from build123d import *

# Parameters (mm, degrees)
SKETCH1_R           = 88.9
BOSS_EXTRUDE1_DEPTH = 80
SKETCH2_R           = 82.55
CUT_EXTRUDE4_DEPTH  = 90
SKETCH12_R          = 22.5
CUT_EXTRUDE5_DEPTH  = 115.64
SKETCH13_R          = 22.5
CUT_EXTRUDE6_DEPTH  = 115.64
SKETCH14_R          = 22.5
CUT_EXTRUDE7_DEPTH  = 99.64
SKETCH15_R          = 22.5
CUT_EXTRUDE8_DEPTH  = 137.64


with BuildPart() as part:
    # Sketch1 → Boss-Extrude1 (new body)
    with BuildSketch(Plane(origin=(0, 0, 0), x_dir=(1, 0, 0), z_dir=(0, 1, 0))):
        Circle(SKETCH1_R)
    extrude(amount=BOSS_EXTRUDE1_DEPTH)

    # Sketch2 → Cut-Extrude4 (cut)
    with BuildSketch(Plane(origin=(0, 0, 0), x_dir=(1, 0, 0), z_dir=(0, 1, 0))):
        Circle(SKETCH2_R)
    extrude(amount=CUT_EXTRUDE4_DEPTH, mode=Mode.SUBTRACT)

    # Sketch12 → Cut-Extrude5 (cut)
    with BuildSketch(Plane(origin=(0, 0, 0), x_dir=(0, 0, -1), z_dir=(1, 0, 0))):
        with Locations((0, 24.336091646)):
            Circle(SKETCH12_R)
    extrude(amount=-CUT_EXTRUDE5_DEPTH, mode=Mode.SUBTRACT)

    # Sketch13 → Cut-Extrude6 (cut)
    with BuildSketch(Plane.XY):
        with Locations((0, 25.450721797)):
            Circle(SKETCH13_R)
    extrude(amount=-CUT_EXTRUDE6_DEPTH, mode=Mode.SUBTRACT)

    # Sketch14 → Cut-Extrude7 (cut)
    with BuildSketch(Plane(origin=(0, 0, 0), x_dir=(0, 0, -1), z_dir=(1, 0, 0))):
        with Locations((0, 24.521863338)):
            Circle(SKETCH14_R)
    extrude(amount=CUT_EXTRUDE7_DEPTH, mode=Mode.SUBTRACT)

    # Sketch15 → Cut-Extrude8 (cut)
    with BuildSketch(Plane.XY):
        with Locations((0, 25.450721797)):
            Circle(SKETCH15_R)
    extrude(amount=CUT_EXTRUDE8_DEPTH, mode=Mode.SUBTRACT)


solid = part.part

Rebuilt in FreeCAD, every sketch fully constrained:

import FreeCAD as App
import Part
import Sketcher
from FreeCAD import Vector

doc = App.newDocument("Part")
body = doc.addObject("PartDesign::Body", "Body")

# Sketch on XZ plane
sketch1 = doc.addObject("Sketcher::SketchObject", "Sketch")
body.addObject(sketch1)
sketch1.AttachmentSupport = (doc.XZ_Plane, [""])
sketch1.MapMode = "FlatFace"
sketch1.addGeometry(Part.Circle(Vector(0, 0, 0), Vector(0, 0, 1), 88.9), False)
sketch1.addConstraint([
    Sketcher.Constraint("Coincident", 0, 3, -1, 1),
    Sketcher.Constraint("Diameter", 0, 177.8),
])
pad1 = doc.addObject("PartDesign::Pad", "Pad")
body.addObject(pad1)
pad1.Profile = sketch1
pad1.Length = 80
pad1.Reversed = True

# Sketch on XZ plane
sketch2 = doc.addObject("Sketcher::SketchObject", "Sketch001")
body.addObject(sketch2)
sketch2.AttachmentSupport = (doc.XZ_Plane, [""])
sketch2.MapMode = "FlatFace"
sketch2.addGeometry(Part.Circle(Vector(0, 0, 0), Vector(0, 0, 1), 82.55), False)
sketch2.addConstraint([
    Sketcher.Constraint("Coincident", 0, 3, -1, 1),
    Sketcher.Constraint("Diameter", 0, 165.1),
])
pocket1 = doc.addObject("PartDesign::Pocket", "Pocket")
body.addObject(pocket1)
pocket1.Profile = sketch2
pocket1.Length = 90

# Sketch on YZ plane
sketch3 = doc.addObject("Sketcher::SketchObject", "Sketch002")
body.addObject(sketch3)
sketch3.AttachmentSupport = (doc.YZ_Plane, [""])
sketch3.MapMode = "FlatFace"
sketch3.addGeometry(Part.Circle(Vector(24.336092, 0, 0), Vector(0, 0, 1), 22.5), False)
sketch3.addConstraint([
    Sketcher.Constraint("PointOnObject", 0, 3, -1),
    Sketcher.Constraint("Diameter", 0, 45.0),
    Sketcher.Constraint("DistanceX", -1, 1, 0, 3, 24.336092),
])
pocket2 = doc.addObject("PartDesign::Pocket", "Pocket001")
body.addObject(pocket2)
pocket2.Profile = sketch3
pocket2.Length = 115.64

# Sketch on XY plane
sketch4 = doc.addObject("Sketcher::SketchObject", "Sketch003")
body.addObject(sketch4)
sketch4.AttachmentSupport = (doc.XY_Plane, [""])
sketch4.MapMode = "FlatFace"
sketch4.addGeometry(Part.Circle(Vector(0, 25.450722, 0), Vector(0, 0, 1), 22.5), False)
sketch4.addConstraint([
    Sketcher.Constraint("PointOnObject", 0, 3, -2),
    Sketcher.Constraint("Diameter", 0, 45.0),
    Sketcher.Constraint("DistanceY", -1, 1, 0, 3, 25.450722),
])
pocket3 = doc.addObject("PartDesign::Pocket", "Pocket002")
body.addObject(pocket3)
pocket3.Profile = sketch4
pocket3.Length = 115.64

# Sketch on YZ plane
sketch5 = doc.addObject("Sketcher::SketchObject", "Sketch004")
body.addObject(sketch5)
sketch5.AttachmentSupport = (doc.YZ_Plane, [""])
sketch5.MapMode = "FlatFace"
sketch5.addGeometry(Part.Circle(Vector(24.521863, 0, 0), Vector(0, 0, 1), 22.5), False)
sketch5.addConstraint([
    Sketcher.Constraint("PointOnObject", 0, 3, -1),
    Sketcher.Constraint("Diameter", 0, 45.0),
    Sketcher.Constraint("DistanceX", -1, 1, 0, 3, 24.521863),
])
pocket4 = doc.addObject("PartDesign::Pocket", "Pocket003")
body.addObject(pocket4)
pocket4.Profile = sketch5
pocket4.Length = 99.64
pocket4.Reversed = True

# Sketch on XY plane
sketch6 = doc.addObject("Sketcher::SketchObject", "Sketch005")
body.addObject(sketch6)
sketch6.AttachmentSupport = (doc.XY_Plane, [""])
sketch6.MapMode = "FlatFace"
sketch6.addGeometry(Part.Circle(Vector(0, 25.450722, 0), Vector(0, 0, 1), 22.5), False)
sketch6.addConstraint([
    Sketcher.Constraint("PointOnObject", 0, 3, -2),
    Sketcher.Constraint("Diameter", 0, 45.0),
    Sketcher.Constraint("DistanceY", -1, 1, 0, 3, 25.450722),
])
pocket5 = doc.addObject("PartDesign::Pocket", "Pocket004")
body.addObject(pocket5)
pocket5.Profile = sketch6
pocket5.Length = 137.64
pocket5.Reversed = True

doc.recompute()
